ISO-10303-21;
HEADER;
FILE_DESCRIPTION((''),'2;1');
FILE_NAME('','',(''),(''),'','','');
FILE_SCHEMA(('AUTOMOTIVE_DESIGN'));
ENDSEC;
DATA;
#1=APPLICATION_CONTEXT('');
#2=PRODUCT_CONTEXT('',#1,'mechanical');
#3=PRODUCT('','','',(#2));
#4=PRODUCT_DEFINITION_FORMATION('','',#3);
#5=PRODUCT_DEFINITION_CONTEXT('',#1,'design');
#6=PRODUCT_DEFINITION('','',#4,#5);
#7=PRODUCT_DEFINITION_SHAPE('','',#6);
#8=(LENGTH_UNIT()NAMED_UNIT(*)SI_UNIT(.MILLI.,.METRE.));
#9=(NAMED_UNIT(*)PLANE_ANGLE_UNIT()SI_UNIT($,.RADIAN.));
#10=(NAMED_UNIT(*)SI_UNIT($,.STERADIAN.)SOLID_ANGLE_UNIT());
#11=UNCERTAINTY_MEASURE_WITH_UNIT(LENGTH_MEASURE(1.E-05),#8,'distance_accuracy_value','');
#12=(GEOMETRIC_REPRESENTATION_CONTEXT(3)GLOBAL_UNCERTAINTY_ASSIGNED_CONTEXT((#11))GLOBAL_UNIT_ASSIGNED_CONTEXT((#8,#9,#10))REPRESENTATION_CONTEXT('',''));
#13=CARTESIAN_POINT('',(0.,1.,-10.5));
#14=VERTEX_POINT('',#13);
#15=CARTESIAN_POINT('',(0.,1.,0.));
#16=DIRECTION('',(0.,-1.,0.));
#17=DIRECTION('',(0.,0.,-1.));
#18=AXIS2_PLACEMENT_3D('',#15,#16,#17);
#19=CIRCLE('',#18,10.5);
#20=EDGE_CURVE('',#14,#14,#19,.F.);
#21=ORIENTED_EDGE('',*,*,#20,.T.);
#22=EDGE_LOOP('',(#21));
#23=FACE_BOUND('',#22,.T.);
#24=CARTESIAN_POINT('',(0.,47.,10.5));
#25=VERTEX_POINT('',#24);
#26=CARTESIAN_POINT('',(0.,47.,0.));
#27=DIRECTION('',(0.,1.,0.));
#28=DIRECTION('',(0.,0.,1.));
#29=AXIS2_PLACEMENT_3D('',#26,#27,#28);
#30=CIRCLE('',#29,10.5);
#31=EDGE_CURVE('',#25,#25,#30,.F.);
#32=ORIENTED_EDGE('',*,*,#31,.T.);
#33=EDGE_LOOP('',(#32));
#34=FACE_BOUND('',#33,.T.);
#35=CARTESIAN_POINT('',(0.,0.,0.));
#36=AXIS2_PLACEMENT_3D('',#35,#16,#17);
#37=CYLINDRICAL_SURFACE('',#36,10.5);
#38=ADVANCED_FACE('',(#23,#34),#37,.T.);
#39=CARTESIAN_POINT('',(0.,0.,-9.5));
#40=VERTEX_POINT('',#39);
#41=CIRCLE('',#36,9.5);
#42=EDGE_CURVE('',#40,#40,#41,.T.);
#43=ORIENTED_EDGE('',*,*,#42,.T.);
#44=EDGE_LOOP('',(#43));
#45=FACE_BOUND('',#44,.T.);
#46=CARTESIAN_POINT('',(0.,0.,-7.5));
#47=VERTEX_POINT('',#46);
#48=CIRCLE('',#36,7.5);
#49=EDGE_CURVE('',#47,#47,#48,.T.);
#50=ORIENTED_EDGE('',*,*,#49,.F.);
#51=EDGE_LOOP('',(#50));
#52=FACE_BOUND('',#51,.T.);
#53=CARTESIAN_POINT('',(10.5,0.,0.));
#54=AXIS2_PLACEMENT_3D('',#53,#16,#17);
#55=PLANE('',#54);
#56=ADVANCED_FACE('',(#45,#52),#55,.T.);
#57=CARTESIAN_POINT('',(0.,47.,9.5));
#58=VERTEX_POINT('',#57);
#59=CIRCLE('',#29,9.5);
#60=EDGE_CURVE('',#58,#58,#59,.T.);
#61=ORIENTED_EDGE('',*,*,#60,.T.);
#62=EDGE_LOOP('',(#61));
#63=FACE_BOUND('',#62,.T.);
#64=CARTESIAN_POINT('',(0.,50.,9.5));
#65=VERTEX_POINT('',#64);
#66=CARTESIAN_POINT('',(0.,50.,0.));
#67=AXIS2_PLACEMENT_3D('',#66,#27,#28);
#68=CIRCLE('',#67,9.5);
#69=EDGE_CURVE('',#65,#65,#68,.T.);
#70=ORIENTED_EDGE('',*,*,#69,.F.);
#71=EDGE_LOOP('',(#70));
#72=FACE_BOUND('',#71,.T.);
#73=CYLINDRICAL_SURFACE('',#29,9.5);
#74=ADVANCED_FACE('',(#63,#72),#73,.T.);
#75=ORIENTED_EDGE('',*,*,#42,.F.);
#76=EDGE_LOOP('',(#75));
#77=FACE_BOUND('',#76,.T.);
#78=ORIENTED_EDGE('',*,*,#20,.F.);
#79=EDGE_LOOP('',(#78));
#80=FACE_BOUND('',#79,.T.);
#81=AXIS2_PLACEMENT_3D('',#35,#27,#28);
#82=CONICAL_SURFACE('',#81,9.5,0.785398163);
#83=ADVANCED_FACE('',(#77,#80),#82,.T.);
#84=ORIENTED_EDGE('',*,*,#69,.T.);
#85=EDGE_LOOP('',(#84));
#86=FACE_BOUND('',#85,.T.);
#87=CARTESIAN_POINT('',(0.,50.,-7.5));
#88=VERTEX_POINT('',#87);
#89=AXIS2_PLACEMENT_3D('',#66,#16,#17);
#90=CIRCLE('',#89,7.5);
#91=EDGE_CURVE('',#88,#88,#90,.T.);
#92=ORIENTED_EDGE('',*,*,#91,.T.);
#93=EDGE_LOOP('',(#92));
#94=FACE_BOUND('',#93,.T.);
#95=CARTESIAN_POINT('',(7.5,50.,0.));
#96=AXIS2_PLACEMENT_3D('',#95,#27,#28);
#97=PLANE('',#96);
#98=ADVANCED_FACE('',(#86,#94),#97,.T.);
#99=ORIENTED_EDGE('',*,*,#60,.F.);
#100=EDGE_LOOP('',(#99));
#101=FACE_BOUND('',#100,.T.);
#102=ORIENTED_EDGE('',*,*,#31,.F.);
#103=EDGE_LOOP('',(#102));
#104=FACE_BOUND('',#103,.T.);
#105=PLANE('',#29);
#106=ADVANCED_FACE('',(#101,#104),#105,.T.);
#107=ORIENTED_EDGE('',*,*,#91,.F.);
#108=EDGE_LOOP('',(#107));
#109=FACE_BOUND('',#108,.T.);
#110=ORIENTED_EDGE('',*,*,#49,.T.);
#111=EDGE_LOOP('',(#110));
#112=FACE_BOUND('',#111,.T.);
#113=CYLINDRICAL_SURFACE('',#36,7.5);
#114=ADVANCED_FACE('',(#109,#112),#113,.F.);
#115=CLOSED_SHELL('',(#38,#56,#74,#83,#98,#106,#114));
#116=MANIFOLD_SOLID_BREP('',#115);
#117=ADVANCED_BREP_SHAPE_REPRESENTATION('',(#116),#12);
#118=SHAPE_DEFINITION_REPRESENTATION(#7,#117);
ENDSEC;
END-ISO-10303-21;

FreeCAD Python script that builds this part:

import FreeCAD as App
import Part
import Sketcher
Q = App.Units.Quantity


def edges_at(feature, points):
    """Names of the edges that pass closest to the given points."""
    edges = feature.Shape.Edges
    near = lambda p: min(range(len(edges)), key=lambda i: edges[i].distToShape(Part.Vertex(*p))[0])
    return sorted({f"Edge{near(p) + 1}" for p in points})

doc = App.newDocument("Part")
body = doc.addObject("PartDesign::Body", "Body")

sketch1 = body.newObject("Sketcher::SketchObject", "Sketch")
sketch1.AttachmentSupport = (doc.getObject("XY_Plane"), [""])
sketch1.MapMode = "FlatFace"
sketch1.addGeometry([
    Part.LineSegment(App.Vector(7.5, 50, 0), App.Vector(7.5, 0, 0)),
    Part.LineSegment(App.Vector(7.5, 0, 0), App.Vector(10.5, 0, 0)),
    Part.LineSegment(App.Vector(10.5, 0, 0), App.Vector(10.5, 50, 0)),
    Part.LineSegment(App.Vector(10.5, 50, 0), App.Vector(7.5, 50, 0)),
], False)
sketch1.addConstraint([
    Sketcher.Constraint("Coincident", 0, 2, 1, 1),
    Sketcher.Constraint("Coincident", 1, 2, 2, 1),
    Sketcher.Constraint("Coincident", 2, 2, 3, 1),
    Sketcher.Constraint("Coincident", 3, 2, 0, 1),
    Sketcher.Constraint("Vertical", 0),
    Sketcher.Constraint("Horizontal", 1),
    Sketcher.Constraint("Vertical", 2),
    Sketcher.Constraint("Horizontal", 3),
    Sketcher.Constraint("PointOnObject", 0, 2, -1),
    Sketcher.Constraint("DistanceX", 1, 1, 1, 2, Q("3 mm")),
    Sketcher.Constraint("DistanceY", 0, 2, 0, 1, Q("50 mm")),
    Sketcher.Constraint("DistanceX", -1, 1, 0, 2, Q("7.5 mm")),
])
revolution = body.newObject("PartDesign::Revolution", "Revolution")
revolution.Profile = sketch1
revolution.ReferenceAxis = (sketch1, ["V_Axis"])
revolution.Angle = 360
doc.recompute()

chamfer = body.newObject("PartDesign::Chamfer", "Chamfer")
chamfer.Base = (revolution, edges_at(revolution, [(0, 0, 10.5)]))
chamfer.Size = 1

sketch2 = body.newObject("Sketcher::SketchObject", "Sketch001")
sketch2.AttachmentSupport = (doc.getObject("XZ_Plane"), [""])
sketch2.MapMode = "FlatFace"
sketch2.AttachmentOffset = App.Placement(App.Vector(0, 0, -50), App.Rotation())
sketch2.addGeometry([
    Part.LineSegment(App.Vector(-17, -17, 0), App.Vector(-17, 17, 0)),
    Part.LineSegment(App.Vector(-17, 17, 0), App.Vector(17, 17, 0)),
    Part.LineSegment(App.Vector(17, 17, 0), App.Vector(17, -17, 0)),
    Part.LineSegment(App.Vector(17, -17, 0), App.Vector(-17, -17, 0)),
    Part.Circle(App.Vector(0, 0, 0), App.Vector(0, 0, 1), 10),
], False)
sketch2.addConstraint([
    Sketcher.Constraint("Coincident", 0, 2, 1, 1),
    Sketcher.Constraint("Coincident", 1, 2, 2, 1),
    Sketcher.Constraint("Coincident", 2, 2, 3, 1),
    Sketcher.Constraint("Coincident", 3, 2, 0, 1),
    Sketcher.Constraint("Vertical", 0),
    Sketcher.Constraint("Horizontal", 1),
    Sketcher.Constraint("Vertical", 2),
    Sketcher.Constraint("Horizontal", 3),
    Sketcher.Constraint("Coincident", 4, 3, -1, 1),
    Sketcher.Constraint("Symmetric", 0, 2, 2, 2, -1, 1),
    Sketcher.Constraint("Equal", 3, 0),
    Sketcher.Constraint("Diameter", 4, Q("19 mm")),
    Sketcher.Constraint("DistanceX", 1, 1, 1, 2, Q("34.63 mm")),
])
pocket1 = body.newObject("PartDesign::Pocket", "Pocket")
pocket1.Profile = sketch2
pocket1.Length = 3
pocket1.Reversed = True

doc.recompute()
